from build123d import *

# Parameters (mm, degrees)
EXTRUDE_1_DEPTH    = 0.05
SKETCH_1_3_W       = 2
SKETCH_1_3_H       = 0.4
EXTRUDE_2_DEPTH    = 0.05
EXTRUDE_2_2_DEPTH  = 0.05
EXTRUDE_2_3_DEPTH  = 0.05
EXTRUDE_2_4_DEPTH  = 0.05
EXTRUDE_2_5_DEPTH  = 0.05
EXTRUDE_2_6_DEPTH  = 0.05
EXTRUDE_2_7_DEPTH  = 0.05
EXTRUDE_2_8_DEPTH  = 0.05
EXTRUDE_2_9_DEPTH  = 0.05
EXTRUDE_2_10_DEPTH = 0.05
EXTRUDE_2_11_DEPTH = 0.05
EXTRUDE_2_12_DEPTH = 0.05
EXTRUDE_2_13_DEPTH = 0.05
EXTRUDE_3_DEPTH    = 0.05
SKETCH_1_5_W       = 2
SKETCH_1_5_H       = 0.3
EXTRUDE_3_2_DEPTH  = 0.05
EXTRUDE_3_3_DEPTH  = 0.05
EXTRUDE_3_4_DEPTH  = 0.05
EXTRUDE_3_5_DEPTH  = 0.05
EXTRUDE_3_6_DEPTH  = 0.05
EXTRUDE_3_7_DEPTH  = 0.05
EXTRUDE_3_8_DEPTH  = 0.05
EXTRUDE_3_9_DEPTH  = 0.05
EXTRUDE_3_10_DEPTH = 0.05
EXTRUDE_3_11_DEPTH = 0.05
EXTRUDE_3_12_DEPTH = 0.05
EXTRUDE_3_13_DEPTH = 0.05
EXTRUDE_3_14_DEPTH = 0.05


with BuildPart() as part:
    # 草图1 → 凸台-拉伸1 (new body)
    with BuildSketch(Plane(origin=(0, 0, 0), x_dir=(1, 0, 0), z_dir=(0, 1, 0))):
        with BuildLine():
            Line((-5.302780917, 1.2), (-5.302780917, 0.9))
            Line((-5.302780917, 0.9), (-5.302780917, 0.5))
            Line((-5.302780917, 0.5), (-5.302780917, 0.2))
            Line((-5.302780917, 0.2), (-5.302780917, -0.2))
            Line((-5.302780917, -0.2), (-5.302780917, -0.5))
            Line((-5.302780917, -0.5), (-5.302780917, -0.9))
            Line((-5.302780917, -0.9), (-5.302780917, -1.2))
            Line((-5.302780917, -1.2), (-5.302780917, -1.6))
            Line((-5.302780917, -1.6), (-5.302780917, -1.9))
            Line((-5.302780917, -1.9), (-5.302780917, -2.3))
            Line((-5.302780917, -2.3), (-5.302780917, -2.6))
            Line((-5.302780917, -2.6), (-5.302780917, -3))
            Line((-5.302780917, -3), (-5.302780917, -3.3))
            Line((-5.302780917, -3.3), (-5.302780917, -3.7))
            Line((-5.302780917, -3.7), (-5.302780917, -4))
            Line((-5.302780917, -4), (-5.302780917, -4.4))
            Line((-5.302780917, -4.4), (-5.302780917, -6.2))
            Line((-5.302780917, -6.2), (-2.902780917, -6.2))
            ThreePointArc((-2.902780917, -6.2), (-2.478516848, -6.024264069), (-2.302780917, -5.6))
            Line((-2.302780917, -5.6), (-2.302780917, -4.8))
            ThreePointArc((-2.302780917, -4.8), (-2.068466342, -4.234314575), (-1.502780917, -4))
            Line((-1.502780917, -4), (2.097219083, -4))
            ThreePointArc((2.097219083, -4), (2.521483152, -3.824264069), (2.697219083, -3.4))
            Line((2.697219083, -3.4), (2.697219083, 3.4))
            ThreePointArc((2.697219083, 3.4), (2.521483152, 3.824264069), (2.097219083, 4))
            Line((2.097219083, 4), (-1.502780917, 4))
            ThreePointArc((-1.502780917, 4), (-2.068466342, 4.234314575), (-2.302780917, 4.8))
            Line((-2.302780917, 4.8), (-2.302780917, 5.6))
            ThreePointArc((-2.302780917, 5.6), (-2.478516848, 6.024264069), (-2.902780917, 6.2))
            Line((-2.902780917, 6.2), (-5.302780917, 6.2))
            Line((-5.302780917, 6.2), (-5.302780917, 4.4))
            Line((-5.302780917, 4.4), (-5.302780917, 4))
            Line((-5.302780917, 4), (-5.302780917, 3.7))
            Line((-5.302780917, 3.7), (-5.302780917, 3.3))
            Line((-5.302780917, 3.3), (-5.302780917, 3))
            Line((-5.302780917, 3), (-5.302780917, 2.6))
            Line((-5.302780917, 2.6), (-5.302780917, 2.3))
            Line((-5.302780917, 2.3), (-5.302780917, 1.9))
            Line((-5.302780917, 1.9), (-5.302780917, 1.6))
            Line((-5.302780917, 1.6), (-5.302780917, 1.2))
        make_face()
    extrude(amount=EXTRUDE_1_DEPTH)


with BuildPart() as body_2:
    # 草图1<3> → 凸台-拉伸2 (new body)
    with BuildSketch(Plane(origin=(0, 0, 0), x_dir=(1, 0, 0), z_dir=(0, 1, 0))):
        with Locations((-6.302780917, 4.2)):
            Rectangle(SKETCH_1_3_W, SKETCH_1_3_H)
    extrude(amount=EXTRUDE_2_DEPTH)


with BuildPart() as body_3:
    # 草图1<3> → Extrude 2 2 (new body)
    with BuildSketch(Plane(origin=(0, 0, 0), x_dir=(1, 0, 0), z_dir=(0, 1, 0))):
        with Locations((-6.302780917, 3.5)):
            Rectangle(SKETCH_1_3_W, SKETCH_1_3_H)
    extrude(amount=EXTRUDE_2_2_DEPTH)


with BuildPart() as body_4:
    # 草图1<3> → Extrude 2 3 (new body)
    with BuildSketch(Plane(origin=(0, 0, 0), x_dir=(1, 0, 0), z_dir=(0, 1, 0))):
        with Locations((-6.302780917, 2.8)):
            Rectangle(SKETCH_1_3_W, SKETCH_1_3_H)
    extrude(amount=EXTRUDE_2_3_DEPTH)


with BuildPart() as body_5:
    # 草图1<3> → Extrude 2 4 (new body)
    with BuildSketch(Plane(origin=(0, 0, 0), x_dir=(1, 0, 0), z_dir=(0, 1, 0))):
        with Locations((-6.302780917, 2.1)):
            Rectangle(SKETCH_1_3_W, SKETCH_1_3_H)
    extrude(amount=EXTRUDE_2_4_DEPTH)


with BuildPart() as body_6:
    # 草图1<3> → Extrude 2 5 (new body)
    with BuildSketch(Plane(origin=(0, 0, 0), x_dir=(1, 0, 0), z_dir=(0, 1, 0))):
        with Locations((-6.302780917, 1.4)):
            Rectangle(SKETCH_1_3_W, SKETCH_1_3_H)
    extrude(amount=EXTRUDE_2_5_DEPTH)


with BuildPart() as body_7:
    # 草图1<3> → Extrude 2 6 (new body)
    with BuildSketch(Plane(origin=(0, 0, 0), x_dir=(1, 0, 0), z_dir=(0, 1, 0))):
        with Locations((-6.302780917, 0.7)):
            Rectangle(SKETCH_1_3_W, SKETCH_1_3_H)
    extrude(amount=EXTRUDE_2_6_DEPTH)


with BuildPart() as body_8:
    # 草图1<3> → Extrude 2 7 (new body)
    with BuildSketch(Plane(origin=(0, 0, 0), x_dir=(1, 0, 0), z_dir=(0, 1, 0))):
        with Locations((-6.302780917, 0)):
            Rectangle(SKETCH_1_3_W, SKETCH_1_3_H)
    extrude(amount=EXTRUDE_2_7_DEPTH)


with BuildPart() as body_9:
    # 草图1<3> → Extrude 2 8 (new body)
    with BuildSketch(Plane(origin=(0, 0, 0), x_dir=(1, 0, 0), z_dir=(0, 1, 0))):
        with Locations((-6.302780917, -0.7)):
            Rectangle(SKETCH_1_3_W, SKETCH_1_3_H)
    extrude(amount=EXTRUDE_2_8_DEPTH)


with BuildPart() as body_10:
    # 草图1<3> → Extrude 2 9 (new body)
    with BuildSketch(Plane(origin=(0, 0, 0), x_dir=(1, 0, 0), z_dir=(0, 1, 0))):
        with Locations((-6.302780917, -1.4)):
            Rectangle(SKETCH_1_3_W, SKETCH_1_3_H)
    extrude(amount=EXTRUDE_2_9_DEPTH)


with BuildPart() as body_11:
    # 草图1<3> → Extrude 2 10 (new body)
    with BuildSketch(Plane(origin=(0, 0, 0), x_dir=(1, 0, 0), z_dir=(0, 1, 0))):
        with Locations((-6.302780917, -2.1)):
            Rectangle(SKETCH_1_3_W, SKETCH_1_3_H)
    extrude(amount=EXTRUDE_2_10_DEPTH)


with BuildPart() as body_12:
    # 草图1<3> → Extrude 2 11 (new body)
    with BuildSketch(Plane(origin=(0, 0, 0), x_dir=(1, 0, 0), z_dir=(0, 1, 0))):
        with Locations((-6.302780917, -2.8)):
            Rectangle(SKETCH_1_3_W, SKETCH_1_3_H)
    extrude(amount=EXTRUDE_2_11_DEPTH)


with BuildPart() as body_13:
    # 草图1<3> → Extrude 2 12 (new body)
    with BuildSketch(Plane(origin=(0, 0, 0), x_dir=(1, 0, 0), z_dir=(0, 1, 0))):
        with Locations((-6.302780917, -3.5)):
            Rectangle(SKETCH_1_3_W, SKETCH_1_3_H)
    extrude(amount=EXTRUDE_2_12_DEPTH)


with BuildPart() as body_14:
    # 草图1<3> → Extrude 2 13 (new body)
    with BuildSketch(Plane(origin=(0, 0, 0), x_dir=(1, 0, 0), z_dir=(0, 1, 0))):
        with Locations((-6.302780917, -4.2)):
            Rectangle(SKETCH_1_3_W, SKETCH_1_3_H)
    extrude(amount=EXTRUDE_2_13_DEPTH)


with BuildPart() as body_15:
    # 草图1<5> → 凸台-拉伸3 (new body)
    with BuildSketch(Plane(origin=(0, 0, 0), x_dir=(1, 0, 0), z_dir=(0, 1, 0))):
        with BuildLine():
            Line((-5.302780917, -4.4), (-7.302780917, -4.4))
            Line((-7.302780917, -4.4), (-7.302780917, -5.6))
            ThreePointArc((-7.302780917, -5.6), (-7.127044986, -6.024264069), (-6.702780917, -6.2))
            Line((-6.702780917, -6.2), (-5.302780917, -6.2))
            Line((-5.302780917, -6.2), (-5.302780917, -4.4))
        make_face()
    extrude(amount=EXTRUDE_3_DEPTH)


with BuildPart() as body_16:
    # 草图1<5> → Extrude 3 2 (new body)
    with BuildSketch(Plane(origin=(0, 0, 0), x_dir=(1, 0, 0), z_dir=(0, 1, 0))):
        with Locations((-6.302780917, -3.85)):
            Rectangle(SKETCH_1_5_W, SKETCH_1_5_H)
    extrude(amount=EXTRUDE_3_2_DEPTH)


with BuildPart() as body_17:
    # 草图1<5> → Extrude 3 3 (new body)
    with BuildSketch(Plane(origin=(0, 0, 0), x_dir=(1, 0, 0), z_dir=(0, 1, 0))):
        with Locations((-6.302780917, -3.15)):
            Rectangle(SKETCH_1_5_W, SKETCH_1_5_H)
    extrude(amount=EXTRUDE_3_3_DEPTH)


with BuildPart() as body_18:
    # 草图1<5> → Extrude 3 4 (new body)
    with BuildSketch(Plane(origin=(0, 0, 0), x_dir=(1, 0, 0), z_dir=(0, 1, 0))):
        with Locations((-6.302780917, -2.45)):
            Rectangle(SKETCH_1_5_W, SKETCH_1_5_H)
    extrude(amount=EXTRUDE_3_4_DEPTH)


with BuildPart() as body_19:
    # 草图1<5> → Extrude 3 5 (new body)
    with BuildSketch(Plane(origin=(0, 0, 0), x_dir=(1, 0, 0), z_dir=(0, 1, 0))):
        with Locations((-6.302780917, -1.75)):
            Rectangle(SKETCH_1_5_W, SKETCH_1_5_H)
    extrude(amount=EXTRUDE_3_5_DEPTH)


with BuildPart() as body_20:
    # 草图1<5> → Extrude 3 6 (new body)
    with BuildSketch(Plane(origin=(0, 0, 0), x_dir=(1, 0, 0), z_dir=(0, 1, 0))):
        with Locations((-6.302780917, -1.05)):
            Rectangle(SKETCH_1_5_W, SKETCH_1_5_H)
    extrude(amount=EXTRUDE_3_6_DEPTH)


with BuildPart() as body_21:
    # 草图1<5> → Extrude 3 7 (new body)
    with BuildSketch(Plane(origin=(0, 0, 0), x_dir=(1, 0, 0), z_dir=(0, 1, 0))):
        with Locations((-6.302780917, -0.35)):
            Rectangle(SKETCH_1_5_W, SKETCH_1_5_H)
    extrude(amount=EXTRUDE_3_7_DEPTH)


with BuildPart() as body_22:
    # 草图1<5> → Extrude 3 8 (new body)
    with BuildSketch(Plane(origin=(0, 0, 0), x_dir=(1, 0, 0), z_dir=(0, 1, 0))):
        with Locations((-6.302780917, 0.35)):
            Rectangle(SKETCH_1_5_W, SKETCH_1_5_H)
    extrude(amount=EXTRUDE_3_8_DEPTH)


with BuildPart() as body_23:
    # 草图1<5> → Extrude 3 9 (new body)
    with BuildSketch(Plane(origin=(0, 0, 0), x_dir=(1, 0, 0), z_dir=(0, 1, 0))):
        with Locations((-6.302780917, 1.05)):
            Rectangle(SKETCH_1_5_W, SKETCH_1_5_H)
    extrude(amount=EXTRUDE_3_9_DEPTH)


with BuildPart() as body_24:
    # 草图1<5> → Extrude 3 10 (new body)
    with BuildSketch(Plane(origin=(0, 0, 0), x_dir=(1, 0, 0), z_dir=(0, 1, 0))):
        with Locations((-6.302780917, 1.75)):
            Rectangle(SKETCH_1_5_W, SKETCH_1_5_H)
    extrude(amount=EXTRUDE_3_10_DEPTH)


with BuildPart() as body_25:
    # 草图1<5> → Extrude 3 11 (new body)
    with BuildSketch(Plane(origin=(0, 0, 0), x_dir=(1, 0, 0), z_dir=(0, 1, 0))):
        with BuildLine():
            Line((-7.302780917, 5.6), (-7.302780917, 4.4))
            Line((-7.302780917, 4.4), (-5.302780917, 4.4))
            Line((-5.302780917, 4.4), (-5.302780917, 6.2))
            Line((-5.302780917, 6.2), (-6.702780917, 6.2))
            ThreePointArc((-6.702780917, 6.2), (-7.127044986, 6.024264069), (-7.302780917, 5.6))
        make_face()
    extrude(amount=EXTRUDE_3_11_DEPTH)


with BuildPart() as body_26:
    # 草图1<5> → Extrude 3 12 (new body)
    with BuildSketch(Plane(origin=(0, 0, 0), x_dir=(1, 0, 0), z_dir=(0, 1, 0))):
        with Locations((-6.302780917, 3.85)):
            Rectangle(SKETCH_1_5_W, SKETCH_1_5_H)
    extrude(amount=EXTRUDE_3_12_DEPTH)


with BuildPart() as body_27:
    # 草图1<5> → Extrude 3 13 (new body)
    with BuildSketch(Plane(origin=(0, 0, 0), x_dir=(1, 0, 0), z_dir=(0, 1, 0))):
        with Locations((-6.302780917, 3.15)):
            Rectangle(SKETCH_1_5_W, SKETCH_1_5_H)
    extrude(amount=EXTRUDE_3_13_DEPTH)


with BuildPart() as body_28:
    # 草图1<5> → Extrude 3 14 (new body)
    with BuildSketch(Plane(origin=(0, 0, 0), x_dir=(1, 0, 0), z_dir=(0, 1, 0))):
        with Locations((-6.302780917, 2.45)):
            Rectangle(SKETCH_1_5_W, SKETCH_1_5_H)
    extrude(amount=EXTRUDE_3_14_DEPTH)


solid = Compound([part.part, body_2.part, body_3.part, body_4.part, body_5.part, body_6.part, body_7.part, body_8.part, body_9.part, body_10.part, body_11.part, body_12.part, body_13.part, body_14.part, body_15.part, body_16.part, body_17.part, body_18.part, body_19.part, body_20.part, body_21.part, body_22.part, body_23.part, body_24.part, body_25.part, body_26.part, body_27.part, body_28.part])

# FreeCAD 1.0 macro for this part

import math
import FreeCAD as App
import Part
import Sketcher


def add_polygon(sketch, points):
    """Adds a closed chain of lines whose ends are joined by coincident constraints."""
    first, n = sketch.GeometryCount, len(points)
    for a, b in zip(points, points[1:] + points[:1]):
        sketch.addGeometry(Part.LineSegment(App.Vector(*a, 0), App.Vector(*b, 0)), False)
    for i in range(n):
        sketch.addConstraint(Sketcher.Constraint("Coincident", first + i, 2, first + (i + 1) % n, 1))

doc = App.newDocument("Part")
body = doc.addObject("PartDesign::Body", "Body")

sketch1 = body.newObject("Sketcher::SketchObject", "Sketch")
sketch1.AttachmentSupport = (doc.getObject("XZ_Plane"), [""])
sketch1.MapMode = "FlatFace"
sketch1.addGeometry([
    Part.LineSegment(App.Vector(-5.3, 6.2, 0), App.Vector(-2.9, 6.2, 0)),
    Part.ArcOfCircle(Part.Circle(App.Vector(-2.9, 5.6, 0), App.Vector(0, 0, 1), 0.6), math.radians(0), math.radians(90)),
    Part.LineSegment(App.Vector(-2.3, 5.6, 0), App.Vector(-2.3, 4.8, 0)),
    Part.ArcOfCircle(Part.Circle(App.Vector(-1.5, 4.8, 0), App.Vector(0, 0, 1), 0.8), math.radians(180), math.radians(270)),
    Part.LineSegment(App.Vector(-1.5, 4, 0), App.Vector(2.1, 4, 0)),
    Part.ArcOfCircle(Part.Circle(App.Vector(2.1, 3.4, 0), App.Vector(0, 0, 1), 0.6), math.radians(0), math.radians(90)),
    Part.LineSegment(App.Vector(2.7, 3.4, 0), App.Vector(2.7, -3.4, 0)),
    Part.ArcOfCircle(Part.Circle(App.Vector(2.1, -3.4, 0), App.Vector(0, 0, 1), 0.6), math.radians(-90), math.radians(0)),
    Part.LineSegment(App.Vector(2.1, -4, 0), App.Vector(-1.5, -4, 0)),
    Part.ArcOfCircle(Part.Circle(App.Vector(-1.5, -4.8, 0), App.Vector(0, 0, 1), 0.8), math.radians(90), math.radians(180)),
    Part.LineSegment(App.Vector(-2.3, -4.8, 0), App.Vector(-2.3, -5.6, 0)),
    Part.ArcOfCircle(Part.Circle(App.Vector(-2.9, -5.6, 0), App.Vector(0, 0, 1), 0.6), math.radians(-90), math.radians(0)),
    Part.LineSegment(App.Vector(-2.9, -6.2, 0), App.Vector(-5.3, -6.2, 0)),
    Part.LineSegment(App.Vector(-5.3, -6.2, 0), App.Vector(-5.3, 6.2, 0)),
], False)
sketch1.addConstraint([
    Sketcher.Constraint("Tangent", 0, 2, 1, 2),
    Sketcher.Constraint("Tangent", 1, 1, 2, 1),
    Sketcher.Constraint("Tangent", 2, 2, 3, 1),
    Sketcher.Constraint("Tangent", 3, 2, 4, 1),
    Sketcher.Constraint("Tangent", 4, 2, 5, 2),
    Sketcher.Constraint("Tangent", 5, 1, 6, 1),
    Sketcher.Constraint("Tangent", 6, 2, 7, 2),
    Sketcher.Constraint("Tangent", 7, 1, 8, 1),
    Sketcher.Constraint("Tangent", 8, 2, 9, 1),
    Sketcher.Constraint("Tangent", 9, 2, 10, 1),
    Sketcher.Constraint("Tangent", 10, 2, 11, 2),
    Sketcher.Constraint("Tangent", 11, 1, 12, 1),
    Sketcher.Constraint("Coincident", 12, 2, 13, 1),
    Sketcher.Constraint("Coincident", 13, 2, 0, 1),
    Sketcher.Constraint("Horizontal", 0),
    Sketcher.Constraint("Vertical", 2),
    Sketcher.Constraint("Horizontal", 4),
    Sketcher.Constraint("Vertical", 6),
    Sketcher.Constraint("Horizontal", 8),
    Sketcher.Constraint("Vertical", 10),
    Sketcher.Constraint("Horizontal", 12),
    Sketcher.Constraint("Vertical", 13),
    Sketcher.Constraint("Equal", 1, 5),
    Sketcher.Constraint("Equal", 5, 7),
    Sketcher.Constraint("Equal", 3, 9),
    Sketcher.Constraint("Equal", 7, 11),
    Sketcher.Constraint("Symmetric", 3, 3, 9, 3, -1),
    Sketcher.Constraint("Equal", 2, 10),
    Sketcher.Constraint("Radius", 1, 0.6),
    Sketcher.Constraint("Radius", 3, 0.8),
    Sketcher.Constraint("DistanceX", 0, 1, 0, 2, 2.4),
    Sketcher.Constraint("DistanceX", 4, 1, 4, 2, 3.6),
    Sketcher.Constraint("DistanceY", 2, 2, 2, 1, 0.8),
    Sketcher.Constraint("DistanceY", 6, 2, 6, 1, 6.8),
    Sketcher.Constraint("DistanceX", 1, 3, -1, 1, 2.902781),
])
pad1 = body.newObject("PartDesign::Pad", "Pad")
pad1.Profile = sketch1
pad1.Length = 0.05
pad1.Reversed = True
body2 = doc.addObject("PartDesign::Body", "Body001")

sketch2 = body2.newObject("Sketcher::SketchObject", "Sketch001")
sketch2.AttachmentSupport = (doc.getObject("XZ_Plane001"), [""])
sketch2.MapMode = "FlatFace"
add_polygon(sketch2, [(-7.3, -4.4), (-7.3, -4), (-5.3, -4), (-5.3, -4.4)])
sketch2.addConstraint([
    Sketcher.Constraint("Vertical", 0),
    Sketcher.Constraint("Horizontal", 1),
    Sketcher.Constraint("Vertical", 2),
    Sketcher.Constraint("Horizontal", 3),
    Sketcher.Constraint("DistanceX", 1, 1, 1, 2, 2.0),
    Sketcher.Constraint("DistanceY", 0, 1, 0, 2, 0.4),
    Sketcher.Constraint("DistanceY", 0, 2, -1, 1, 4.0),
    Sketcher.Constraint("DistanceX", 0, 2, -1, 1, 7.302781),
])
pad2 = body2.newObject("PartDesign::Pad", "Pad001")
pad2.Profile = sketch2
pad2.Length = 0.05
pad2.Reversed = True
body3 = doc.addObject("PartDesign::Body", "Body002")

sketch3 = body3.newObject("Sketcher::SketchObject", "Sketch002")
sketch3.AttachmentSupport = (doc.getObject("XZ_Plane002"), [""])
sketch3.MapMode = "FlatFace"
add_polygon(sketch3, [(-7.3, -3.7), (-7.3, -3.3), (-5.3, -3.3), (-5.3, -3.7)])
sketch3.addConstraint([
    Sketcher.Constraint("Vertical", 0),
    Sketcher.Constraint("Horizontal", 1),
    Sketcher.Constraint("Vertical", 2),
    Sketcher.Constraint("Horizontal", 3),
    Sketcher.Constraint("DistanceX", 1, 1, 1, 2, 2.0),
    Sketcher.Constraint("DistanceY", 0, 1, 0, 2, 0.4),
    Sketcher.Constraint("DistanceY", 0, 2, -1, 1, 3.3),
    Sketcher.Constraint("DistanceX", 0, 2, -1, 1, 7.302781),
])
pad3 = body3.newObject("PartDesign::Pad", "Pad002")
pad3.Profile = sketch3
pad3.Length = 0.05
pad3.Reversed = True
body4 = doc.addObject("PartDesign::Body", "Body003")

sketch4 = body4.newObject("Sketcher::SketchObject", "Sketch003")
sketch4.AttachmentSupport = (doc.getObject("XZ_Plane003"), [""])
sketch4.MapMode = "FlatFace"
add_polygon(sketch4, [(-7.3, -3), (-7.3, -2.6), (-5.3, -2.6), (-5.3, -3)])
sketch4.addConstraint([
    Sketcher.Constraint("Vertical", 0),
    Sketcher.Constraint("Horizontal", 1),
    Sketcher.Constraint("Vertical", 2),
    Sketcher.Constraint("Horizontal", 3),
    Sketcher.Constraint("DistanceX", 1, 1, 1, 2, 2.0),
    Sketcher.Constraint("DistanceY", 0, 1, 0, 2, 0.4),
    Sketcher.Constraint("DistanceY", 2, 2, -1, 1, 3.0),
    Sketcher.Constraint("DistanceX", 0, 2, -1, 1, 7.302781),
])
pad4 = body4.newObject("PartDesign::Pad", "Pad003")
pad4.Profile = sketch4
pad4.Length = 0.05
pad4.Reversed = True
body5 = doc.addObject("PartDesign::Body", "Body004")

sketch5 = body5.newObject("Sketcher::SketchObject", "Sketch004")
sketch5.AttachmentSupport = (doc.getObject("XZ_Plane004"), [""])
sketch5.MapMode = "FlatFace"
add_polygon(sketch5, [(-7.3, -2.3), (-7.3, -1.9), (-5.3, -1.9), (-5.3, -2.3)])
sketch5.addConstraint([
    Sketcher.Constraint("Vertical", 0),
    Sketcher.Constraint("Horizontal", 1),
    Sketcher.Constraint("Vertical", 2),
    Sketcher.Constraint("Horizontal", 3),
    Sketcher.Constraint("DistanceX", 1, 1, 1, 2, 2.0),
    Sketcher.Constraint("DistanceY", 0, 1, 0, 2, 0.4),
    Sketcher.Constraint("DistanceY", 0, 2, -1, 1, 1.9),
    Sketcher.Constraint("DistanceX", 0, 2, -1, 1, 7.302781),
])
pad5 = body5.newObject("PartDesign::Pad", "Pad004")
pad5.Profile = sketch5
pad5.Length = 0.05
pad5.Reversed = True
body6 = doc.addObject("PartDesign::Body", "Body005")

sketch6 = body6.newObject("Sketcher::SketchObject", "Sketch005")
sketch6.AttachmentSupport = (doc.getObject("XZ_Plane005"), [""])
sketch6.MapMode = "FlatFace"
add_polygon(sketch6, [(-7.3, -1.6), (-7.3, -1.2), (-5.3, -1.2), (-5.3, -1.6)])
sketch6.addConstraint([
    Sketcher.Constraint("Vertical", 0),
    Sketcher.Constraint("Horizontal", 1),
    Sketcher.Constraint("Vertical", 2),
    Sketcher.Constraint("Horizontal", 3),
    Sketcher.Constraint("DistanceX", 1, 1, 1, 2, 2.0),
    Sketcher.Constraint("DistanceY", 0, 1, 0, 2, 0.4),
    Sketcher.Constraint("DistanceY", 0, 2, -1, 1, 1.2),
    Sketcher.Constraint("DistanceX", 0, 2, -1, 1, 7.302781),
])
pad6 = body6.newObject("PartDesign::Pad", "Pad005")
pad6.Profile = sketch6
pad6.Length = 0.05
pad6.Reversed = True
body7 = doc.addObject("PartDesign::Body", "Body006")

sketch7 = body7.newObject("Sketcher::SketchObject", "Sketch006")
sketch7.AttachmentSupport = (doc.getObject("XZ_Plane006"), [""])
sketch7.MapMode = "FlatFace"
add_polygon(sketch7, [(-7.3, -0.9), (-7.3, -0.5), (-5.3, -0.5), (-5.3, -0.9)])
sketch7.addConstraint([
    Sketcher.Constraint("Vertical", 0),
    Sketcher.Constraint("Horizontal", 1),
    Sketcher.Constraint("Vertical", 2),
    Sketcher.Constraint("Horizontal", 3),
    Sketcher.Constraint("DistanceX", 1, 1, 1, 2, 2.0),
    Sketcher.Constraint("DistanceY", 0, 1, 0, 2, 0.4),
    Sketcher.Constraint("DistanceY", 0, 2, -1, 1, 0.5),
    Sketcher.Constraint("DistanceX", 0, 2, -1, 1, 7.302781),
])
pad7 = body7.newObject("PartDesign::Pad", "Pad006")
pad7.Profile = sketch7
pad7.Length = 0.05
pad7.Reversed = True
body8 = doc.addObject("PartDesign::Body", "Body007")

sketch8 = body8.newObject("Sketcher::SketchObject", "Sketch007")
sketch8.AttachmentSupport = (doc.getObject("XZ_Plane007"), [""])
sketch8.MapMode = "FlatFace"
add_polygon(sketch8, [(-7.3, -0.2), (-7.3, 0.2), (-5.3, 0.2), (-5.3, -0.2)])
sketch8.addConstraint([
    Sketcher.Constraint("Vertical", 0),
    Sketcher.Constraint("Horizontal", 1),
    Sketcher.Constraint("Vertical", 2),
    Sketcher.Constraint("Horizontal", 3),
    Sketcher.Constraint("DistanceX", 1, 1, 1, 2, 2.0),
    Sketcher.Constraint("DistanceY", 0, 1, 0, 2, 0.4),
    Sketcher.Constraint("DistanceY", -1, 1, 0, 2, 0.2),
    Sketcher.Constraint("DistanceX", 0, 2, -1, 1, 7.302781),
])
pad8 = body8.newObject("PartDesign::Pad", "Pad007")
pad8.Profile = sketch8
pad8.Length = 0.05
pad8.Reversed = True
body9 = doc.addObject("PartDesign::Body", "Body008")

sketch9 = body9.newObject("Sketcher::SketchObject", "Sketch008")
sketch9.AttachmentSupport = (doc.getObject("XZ_Plane008"), [""])
sketch9.MapMode = "FlatFace"
add_polygon(sketch9, [(-7.3, 0.5), (-7.3, 0.9), (-5.3, 0.9), (-5.3, 0.5)])
sketch9.addConstraint([
    Sketcher.Constraint("Vertical", 0),
    Sketcher.Constraint("Horizontal", 1),
    Sketcher.Constraint("Vertical", 2),
    Sketcher.Constraint("Horizontal", 3),
    Sketcher.Constraint("DistanceX", 1, 1, 1, 2, 2.0),
    Sketcher.Constraint("DistanceY", 0, 1, 0, 2, 0.4),
    Sketcher.Constraint("DistanceY", -1, 1, 0, 2, 0.9),
    Sketcher.Constraint("DistanceX", 0, 2, -1, 1, 7.302781),
])
pad9 = body9.newObject("PartDesign::Pad", "Pad008")
pad9.Profile = sketch9
pad9.Length = 0.05
pad9.Reversed = True
body10 = doc.addObject("PartDesign::Body", "Body009")

sketch10 = body10.newObject("Sketcher::SketchObject", "Sketch009")
sketch10.AttachmentSupport = (doc.getObject("XZ_Plane009"), [""])
sketch10.MapMode = "FlatFace"
add_polygon(sketch10, [(-7.3, 1.2), (-7.3, 1.6), (-5.3, 1.6), (-5.3, 1.2)])
sketch10.addConstraint([
    Sketcher.Constraint("Vertical", 0),
    Sketcher.Constraint("Horizontal", 1),
    Sketcher.Constraint("Vertical", 2),
    Sketcher.Constraint("Horizontal", 3),
    Sketcher.Constraint("DistanceX", 1, 1, 1, 2, 2.0),
    Sketcher.Constraint("DistanceY", 0, 1, 0, 2, 0.4),
    Sketcher.Constraint("DistanceY", -1, 1, 0, 2, 1.6),
    Sketcher.Constraint("DistanceX", 0, 2, -1, 1, 7.302781),
])
pad10 = body10.newObject("PartDesign::Pad", "Pad009")
pad10.Profile = sketch10
pad10.Length = 0.05
pad10.Reversed = True
body11 = doc.addObject("PartDesign::Body", "Body010")

sketch11 = body11.newObject("Sketcher::SketchObject", "Sketch010")
sketch11.AttachmentSupport = (doc.getObject("XZ_Plane010"), [""])
sketch11.MapMode = "FlatFace"
add_polygon(sketch11, [(-7.3, 1.9), (-7.3, 2.3), (-5.3, 2.3), (-5.3, 1.9)])
sketch11.addConstraint([
    Sketcher.Constraint("Vertical", 0),
    Sketcher.Constraint("Horizontal", 1),
    Sketcher.Constraint("Vertical", 2),
    Sketcher.Constraint("Horizontal", 3),
    Sketcher.Constraint("DistanceX", 1, 1, 1, 2, 2.0),
    Sketcher.Constraint("DistanceY", 0, 1, 0, 2, 0.4),
    Sketcher.Constraint("DistanceY", -1, 1, 0, 2, 2.3),
    Sketcher.Constraint("DistanceX", 0, 2, -1, 1, 7.302781),
])
pad11 = body11.newObject("PartDesign::Pad", "Pad010")
pad11.Profile = sketch11
pad11.Length = 0.05
pad11.Reversed = True
body12 = doc.addObject("PartDesign::Body", "Body011")

sketch12 = body12.newObject("Sketcher::SketchObject", "Sketch011")
sketch12.AttachmentSupport = (doc.getObject("XZ_Plane011"), [""])
sketch12.MapMode = "FlatFace"
add_polygon(sketch12, [(-7.3, 2.6), (-7.3, 3), (-5.3, 3), (-5.3, 2.6)])
sketch12.addConstraint([
    Sketcher.Constraint("Vertical", 0),
    Sketcher.Constraint("Horizontal", 1),
    Sketcher.Constraint("Vertical", 2),
    Sketcher.Constraint("Horizontal", 3),
    Sketcher.Constraint("DistanceX", 1, 1, 1, 2, 2.0),
    Sketcher.Constraint("DistanceY", 0, 1, 0, 2, 0.4),
    Sketcher.Constraint("DistanceY", -1, 1, 0, 2, 3.0),
    Sketcher.Constraint("DistanceX", 0, 2, -1, 1, 7.302781),
])
pad12 = body12.newObject("PartDesign::Pad", "Pad011")
pad12.Profile = sketch12
pad12.Length = 0.05
pad12.Reversed = True
body13 = doc.addObject("PartDesign::Body", "Body012")

sketch13 = body13.newObject("Sketcher::SketchObject", "Sketch012")
sketch13.AttachmentSupport = (doc.getObject("XZ_Plane012"), [""])
sketch13.MapMode = "FlatFace"
add_polygon(sketch13, [(-7.3, 3.3), (-7.3, 3.7), (-5.3, 3.7), (-5.3, 3.3)])
sketch13.addConstraint([
    Sketcher.Constraint("Vertical", 0),
    Sketcher.Constraint("Horizontal", 1),
    Sketcher.Constraint("Vertical", 2),
    Sketcher.Constraint("Horizontal", 3),
    Sketcher.Constraint("DistanceX", 1, 1, 1, 2, 2.0),
    Sketcher.Constraint("DistanceY", 0, 1, 0, 2, 0.4),
    Sketcher.Constraint("DistanceY", -1, 1, 0, 2, 3.7),
    Sketcher.Constraint("DistanceX", 0, 2, -1, 1, 7.302781),
])
pad13 = body13.newObject("PartDesign::Pad", "Pad012")
pad13.Profile = sketch13
pad13.Length = 0.05
pad13.Reversed = True
body14 = doc.addObject("PartDesign::Body", "Body013")

sketch14 = body14.newObject("Sketcher::SketchObject", "Sketch013")
sketch14.AttachmentSupport = (doc.getObject("XZ_Plane013"), [""])
sketch14.MapMode = "FlatFace"
add_polygon(sketch14, [(-7.3, 4), (-7.3, 4.4), (-5.3, 4.4), (-5.3, 4)])
sketch14.addConstraint([
    Sketcher.Constraint("Vertical", 0),
    Sketcher.Constraint("Horizontal", 1),
    Sketcher.Constraint("Vertical", 2),
    Sketcher.Constraint("Horizontal", 3),
    Sketcher.Constraint("DistanceX", 1, 1, 1, 2, 2.0),
    Sketcher.Constraint("DistanceY", 0, 1, 0, 2, 0.4),
    Sketcher.Constraint("DistanceY", -1, 1, 2, 2, 4.0),
    Sketcher.Constraint("DistanceX", 0, 2, -1, 1, 7.302781),
])
pad14 = body14.newObject("PartDesign::Pad", "Pad013")
pad14.Profile = sketch14
pad14.Length = 0.05
pad14.Reversed = True
body15 = doc.addObject("PartDesign::Body", "Body014")

sketch15 = body15.newObject("Sketcher::SketchObject", "Sketch014")
sketch15.AttachmentSupport = (doc.getObject("XZ_Plane014"), [""])
sketch15.MapMode = "FlatFace"
sketch15.addGeometry([
    Part.LineSegment(App.Vector(-5.3, 4.4, 0), App.Vector(-7.3, 4.4, 0)),
    Part.LineSegment(App.Vector(-7.3, 4.4, 0), App.Vector(-7.3, 5.6, 0)),
    Part.ArcOfCircle(Part.Circle(App.Vector(-6.7, 5.6, 0), App.Vector(0, 0, 1), 0.6), math.radians(90), math.radians(180)),
    Part.LineSegment(App.Vector(-6.7, 6.2, 0), App.Vector(-5.3, 6.2, 0)),
    Part.LineSegment(App.Vector(-5.3, 6.2, 0), App.Vector(-5.3, 4.4, 0)),
], False)
sketch15.addConstraint([
    Sketcher.Constraint("Coincident", 0, 2, 1, 1),
    Sketcher.Constraint("Tangent", 1, 2, 2, 2),
    Sketcher.Constraint("Tangent", 2, 1, 3, 1),
    Sketcher.Constraint("Coincident", 3, 2, 4, 1),
    Sketcher.Constraint("Coincident", 4, 2, 0, 1),
    Sketcher.Constraint("Horizontal", 0),
    Sketcher.Constraint("Vertical", 1),
    Sketcher.Constraint("Horizontal", 3),
    Sketcher.Constraint("Vertical", 4),
    Sketcher.Constraint("Radius", 2, 0.6),
    Sketcher.Constraint("DistanceX", 0, 2, 0, 1, 2.0),
    Sketcher.Constraint("DistanceY", 1, 1, 1, 2, 1.2),
    Sketcher.Constraint("DistanceY", -1, 1, 2, 3, 5.6),
    Sketcher.Constraint("DistanceX", 2, 3, -1, 1, 6.702781),
])
pad15 = body15.newObject("PartDesign::Pad", "Pad014")
pad15.Profile = sketch15
pad15.Length = 0.05
pad15.Reversed = True
body16 = doc.addObject("PartDesign::Body", "Body015")

sketch16 = body16.newObject("Sketcher::SketchObject", "Sketch015")
sketch16.AttachmentSupport = (doc.getObject("XZ_Plane015"), [""])
sketch16.MapMode = "FlatFace"
add_polygon(sketch16, [(-7.3, 3.7), (-7.3, 4), (-5.3, 4), (-5.3, 3.7)])
sketch16.addConstraint([
    Sketcher.Constraint("Vertical", 0),
    Sketcher.Constraint("Horizontal", 1),
    Sketcher.Constraint("Vertical", 2),
    Sketcher.Constraint("Horizontal", 3),
    Sketcher.Constraint("DistanceX", 1, 1, 1, 2, 2.0),
    Sketcher.Constraint("DistanceY", 0, 1, 0, 2, 0.3),
    Sketcher.Constraint("DistanceY", -1, 1, 0, 2, 4.0),
    Sketcher.Constraint("DistanceX", 0, 2, -1, 1, 7.302781),
])
pad16 = body16.newObject("PartDesign::Pad", "Pad015")
pad16.Profile = sketch16
pad16.Length = 0.05
pad16.Reversed = True
body17 = doc.addObject("PartDesign::Body", "Body016")

sketch17 = body17.newObject("Sketcher::SketchObject", "Sketch016")
sketch17.AttachmentSupport = (doc.getObject("XZ_Plane016"), [""])
sketch17.MapMode = "FlatFace"
add_polygon(sketch17, [(-7.3, 3), (-7.3, 3.3), (-5.3, 3.3), (-5.3, 3)])
sketch17.addConstraint([
    Sketcher.Constraint("Vertical", 0),
    Sketcher.Constraint("Horizontal", 1),
    Sketcher.Constraint("Vertical", 2),
    Sketcher.Constraint("Horizontal", 3),
    Sketcher.Constraint("DistanceX", 1, 1, 1, 2, 2.0),
    Sketcher.Constraint("DistanceY", 0, 1, 0, 2, 0.3),
    Sketcher.Constraint("DistanceY", -1, 1, 2, 2, 3.0),
    Sketcher.Constraint("DistanceX", 0, 2, -1, 1, 7.302781),
])
pad17 = body17.newObject("PartDesign::Pad", "Pad016")
pad17.Profile = sketch17
pad17.Length = 0.05
pad17.Reversed = True
body18 = doc.addObject("PartDesign::Body", "Body017")

sketch18 = body18.newObject("Sketcher::SketchObject", "Sketch017")
sketch18.AttachmentSupport = (doc.getObject("XZ_Plane017"), [""])
sketch18.MapMode = "FlatFace"
add_polygon(sketch18, [(-7.3, 2.3), (-7.3, 2.6), (-5.3, 2.6), (-5.3, 2.3)])
sketch18.addConstraint([
    Sketcher.Constraint("Vertical", 0),
    Sketcher.Constraint("Horizontal", 1),
    Sketcher.Constraint("Vertical", 2),
    Sketcher.Constraint("Horizontal", 3),
    Sketcher.Constraint("DistanceX", 1, 1, 1, 2, 2.0),
    Sketcher.Constraint("DistanceY", 0, 1, 0, 2, 0.3),
    Sketcher.Constraint("DistanceY", -1, 1, 0, 2, 2.6),
    Sketcher.Constraint("DistanceX", 0, 2, -1, 1, 7.302781),
])
pad18 = body18.newObject("PartDesign::Pad", "Pad017")
pad18.Profile = sketch18
pad18.Length = 0.05
pad18.Reversed = True
body19 = doc.addObject("PartDesign::Body", "Body018")

sketch19 = body19.newObject("Sketcher::SketchObject", "Sketch018")
sketch19.AttachmentSupport = (doc.getObject("XZ_Plane018"), [""])
sketch19.MapMode = "FlatFace"
add_polygon(sketch19, [(-7.3, 1.6), (-7.3, 1.9), (-5.3, 1.9), (-5.3, 1.6)])
sketch19.addConstraint([
    Sketcher.Constraint("Vertical", 0),
    Sketcher.Constraint("Horizontal", 1),
    Sketcher.Constraint("Vertical", 2),
    Sketcher.Constraint("Horizontal", 3),
    Sketcher.Constraint("DistanceX", 1, 1, 1, 2, 2.0),
    Sketcher.Constraint("DistanceY", 0, 1, 0, 2, 0.3),
    Sketcher.Constraint("DistanceY", -1, 1, 0, 2, 1.9),
    Sketcher.Constraint("DistanceX", 0, 2, -1, 1, 7.302781),
])
pad19 = body19.newObject("PartDesign::Pad", "Pad018")
pad19.Profile = sketch19
pad19.Length = 0.05
pad19.Reversed = True
body20 = doc.addObject("PartDesign::Body", "Body019")

sketch20 = body20.newObject("Sketcher::SketchObject", "Sketch019")
sketch20.AttachmentSupport = (doc.getObject("XZ_Plane019"), [""])
sketch20.MapMode = "FlatFace"
add_polygon(sketch20, [(-7.3, 0.9), (-7.3, 1.2), (-5.3, 1.2), (-5.3, 0.9)])
sketch20.addConstraint([
    Sketcher.Constraint("Vertical", 0),
    Sketcher.Constraint("Horizontal", 1),
    Sketcher.Constraint("Vertical", 2),
    Sketcher.Constraint("Horizontal", 3),
    Sketcher.Constraint("DistanceX", 1, 1, 1, 2, 2.0),
    Sketcher.Constraint("DistanceY", 0, 1, 0, 2, 0.3),
    Sketcher.Constraint("DistanceY", -1, 1, 0, 2, 1.2),
    Sketcher.Constraint("DistanceX", 0, 2, -1, 1, 7.302781),
])
pad20 = body20.newObject("PartDesign::Pad", "Pad019")
pad20.Profile = sketch20
pad20.Length = 0.05
pad20.Reversed = True
body21 = doc.addObject("PartDesign::Body", "Body020")

sketch21 = body21.newObject("Sketcher::SketchObject", "Sketch020")
sketch21.AttachmentSupport = (doc.getObject("XZ_Plane020"), [""])
sketch21.MapMode = "FlatFace"
add_polygon(sketch21, [(-7.3, 0.2), (-7.3, 0.5), (-5.3, 0.5), (-5.3, 0.2)])
sketch21.addConstraint([
    Sketcher.Constraint("Vertical", 0),
    Sketcher.Constraint("Horizontal", 1),
    Sketcher.Constraint("Vertical", 2),
    Sketcher.Constraint("Horizontal", 3),
    Sketcher.Constraint("DistanceX", 1, 1, 1, 2, 2.0),
    Sketcher.Constraint("DistanceY", 0, 1, 0, 2, 0.3),
    Sketcher.Constraint("DistanceY", -1, 1, 0, 2, 0.5),
    Sketcher.Constraint("DistanceX", 0, 2, -1, 1, 7.302781),
])
pad21 = body21.newObject("PartDesign::Pad", "Pad020")
pad21.Profile = sketch21
pad21.Length = 0.05
pad21.Reversed = True
body22 = doc.addObject("PartDesign::Body", "Body021")

sketch22 = body22.newObject("Sketcher::SketchObject", "Sketch021")
sketch22.AttachmentSupport = (doc.getObject("XZ_Plane021"), [""])
sketch22.MapMode = "FlatFace"
add_polygon(sketch22, [(-7.3, -0.5), (-7.3, -0.2), (-5.3, -0.2), (-5.3, -0.5)])
sketch22.addConstraint([
    Sketcher.Constraint("Vertical", 0),
    Sketcher.Constraint("Horizontal", 1),
    Sketcher.Constraint("Vertical", 2),
    Sketcher.Constraint("Horizontal", 3),
    Sketcher.Constraint("DistanceX", 1, 1, 1, 2, 2.0),
    Sketcher.Constraint("DistanceY", 0, 1, 0, 2, 0.3),
    Sketcher.Constraint("DistanceY", 0, 2, -1, 1, 0.2),
    Sketcher.Constraint("DistanceX", 0, 2, -1, 1, 7.302781),
])
pad22 = body22.newObject("PartDesign::Pad", "Pad021")
pad22.Profile = sketch22
pad22.Length = 0.05
pad22.Reversed = True
body23 = doc.addObject("PartDesign::Body", "Body022")

sketch23 = body23.newObject("Sketcher::SketchObject", "Sketch022")
sketch23.AttachmentSupport = (doc.getObject("XZ_Plane022"), [""])
sketch23.MapMode = "FlatFace"
add_polygon(sketch23, [(-7.3, -1.2), (-7.3, -0.9), (-5.3, -0.9), (-5.3, -1.2)])
sketch23.addConstraint([
    Sketcher.Constraint("Vertical", 0),
    Sketcher.Constraint("Horizontal", 1),
    Sketcher.Constraint("Vertical", 2),
    Sketcher.Constraint("Horizontal", 3),
    Sketcher.Constraint("DistanceX", 1, 1, 1, 2, 2.0),
    Sketcher.Constraint("DistanceY", 0, 1, 0, 2, 0.3),
    Sketcher.Constraint("DistanceY", 0, 2, -1, 1, 0.9),
    Sketcher.Constraint("DistanceX", 0, 2, -1, 1, 7.302781),
])
pad23 = body23.newObject("PartDesign::Pad", "Pad022")
pad23.Profile = sketch23
pad23.Length = 0.05
pad23.Reversed = True
body24 = doc.addObject("PartDesign::Body", "Body023")

sketch24 = body24.newObject("Sketcher::SketchObject", "Sketch023")
sketch24.AttachmentSupport = (doc.getObject("XZ_Plane023"), [""])
sketch24.MapMode = "FlatFace"
add_polygon(sketch24, [(-7.3, -1.9), (-7.3, -1.6), (-5.3, -1.6), (-5.3, -1.9)])
sketch24.addConstraint([
    Sketcher.Constraint("Vertical", 0),
    Sketcher.Constraint("Horizontal", 1),
    Sketcher.Constraint("Vertical", 2),
    Sketcher.Constraint("Horizontal", 3),
    Sketcher.Constraint("DistanceX", 1, 1, 1, 2, 2.0),
    Sketcher.Constraint("DistanceY", 0, 1, 0, 2, 0.3),
    Sketcher.Constraint("DistanceY", 0, 2, -1, 1, 1.6),
    Sketcher.Constraint("DistanceX", 0, 2, -1, 1, 7.302781),
])
pad24 = body24.newObject("PartDesign::Pad", "Pad023")
pad24.Profile = sketch24
pad24.Length = 0.05
pad24.Reversed = True
body25 = doc.addObject("PartDesign::Body", "Body024")

sketch25 = body25.newObject("Sketcher::SketchObject", "Sketch024")
sketch25.AttachmentSupport = (doc.getObject("XZ_Plane024"), [""])
sketch25.MapMode = "FlatFace"
sketch25.addGeometry([
    Part.LineSegment(App.Vector(-7.3, -5.6, 0), App.Vector(-7.3, -4.4, 0)),
    Part.LineSegment(App.Vector(-7.3, -4.4, 0), App.Vector(-5.3, -4.4, 0)),
    Part.LineSegment(App.Vector(-5.3, -4.4, 0), App.Vector(-5.3, -6.2, 0)),
    Part.LineSegment(App.Vector(-5.3, -6.2, 0), App.Vector(-6.7, -6.2, 0)),
    Part.ArcOfCircle(Part.Circle(App.Vector(-6.7, -5.6, 0), App.Vector(0, 0, 1), 0.6), math.radians(180), math.radians(270)),
], False)
sketch25.addConstraint([
    Sketcher.Constraint("Coincident", 0, 2, 1, 1),
    Sketcher.Constraint("Coincident", 1, 2, 2, 1),
    Sketcher.Constraint("Coincident", 2, 2, 3, 1),
    Sketcher.Constraint("Tangent", 3, 2, 4, 2),
    Sketcher.Constraint("Tangent", 4, 1, 0, 1),
    Sketcher.Constraint("Vertical", 0),
    Sketcher.Constraint("Horizontal", 1),
    Sketcher.Constraint("Vertical", 2),
    Sketcher.Constraint("Horizontal", 3),
    Sketcher.Constraint("Radius", 4, 0.6),
    Sketcher.Constraint("DistanceX", 1, 1, 1, 2, 2.0),
    Sketcher.Constraint("DistanceY", 0, 1, 0, 2, 1.2),
    Sketcher.Constraint("DistanceY", 4, 3, -1, 1, 5.6),
    Sketcher.Constraint("DistanceX", 4, 3, -1, 1, 6.702781),
])
pad25 = body25.newObject("PartDesign::Pad", "Pad024")
pad25.Profile = sketch25
pad25.Length = 0.05
pad25.Reversed = True
body26 = doc.addObject("PartDesign::Body", "Body025")

sketch26 = body26.newObject("Sketcher::SketchObject", "Sketch025")
sketch26.AttachmentSupport = (doc.getObject("XZ_Plane025"), [""])
sketch26.MapMode = "FlatFace"
add_polygon(sketch26, [(-7.3, -4), (-7.3, -3.7), (-5.3, -3.7), (-5.3, -4)])
sketch26.addConstraint([
    Sketcher.Constraint("Vertical", 0),
    Sketcher.Constraint("Horizontal", 1),
    Sketcher.Constraint("Vertical", 2),
    Sketcher.Constraint("Horizontal", 3),
    Sketcher.Constraint("DistanceX", 1, 1, 1, 2, 2.0),
    Sketcher.Constraint("DistanceY", 0, 1, 0, 2, 0.3),
    Sketcher.Constraint("DistanceY", 2, 2, -1, 1, 4.0),
    Sketcher.Constraint("DistanceX", 0, 2, -1, 1, 7.302781),
])
pad26 = body26.newObject("PartDesign::Pad", "Pad025")
pad26.Profile = sketch26
pad26.Length = 0.05
pad26.Reversed = True
body27 = doc.addObject("PartDesign::Body", "Body026")

sketch27 = body27.newObject("Sketcher::SketchObject", "Sketch026")
sketch27.AttachmentSupport = (doc.getObject("XZ_Plane026"), [""])
sketch27.MapMode = "FlatFace"
add_polygon(sketch27, [(-7.3, -3.3), (-7.3, -3), (-5.3, -3), (-5.3, -3.3)])
sketch27.addConstraint([
    Sketcher.Constraint("Vertical", 0),
    Sketcher.Constraint("Horizontal", 1),
    Sketcher.Constraint("Vertical", 2),
    Sketcher.Constraint("Horizontal", 3),
    Sketcher.Constraint("DistanceX", 1, 1, 1, 2, 2.0),
    Sketcher.Constraint("DistanceY", 0, 1, 0, 2, 0.3),
    Sketcher.Constraint("DistanceY", 0, 2, -1, 1, 3.0),
    Sketcher.Constraint("DistanceX", 0, 2, -1, 1, 7.302781),
])
pad27 = body27.newObject("PartDesign::Pad", "Pad026")
pad27.Profile = sketch27
pad27.Length = 0.05
pad27.Reversed = True
body28 = doc.addObject("PartDesign::Body", "Body027")

sketch28 = body28.newObject("Sketcher::SketchObject", "Sketch027")
sketch28.AttachmentSupport = (doc.getObject("XZ_Plane027"), [""])
sketch28.MapMode = "FlatFace"
add_polygon(sketch28, [(-7.3, -2.6), (-7.3, -2.3), (-5.3, -2.3), (-5.3, -2.6)])
sketch28.addConstraint([
    Sketcher.Constraint("Vertical", 0),
    Sketcher.Constraint("Horizontal", 1),
    Sketcher.Constraint("Vertical", 2),
    Sketcher.Constraint("Horizontal", 3),
    Sketcher.Constraint("DistanceX", 1, 1, 1, 2, 2.0),
    Sketcher.Constraint("DistanceY", 0, 1, 0, 2, 0.3),
    Sketcher.Constraint("DistanceY", 0, 2, -1, 1, 2.3),
    Sketcher.Constraint("DistanceX", 0, 2, -1, 1, 7.302781),
])
pad28 = body28.newObject("PartDesign::Pad", "Pad027")
pad28.Profile = sketch28
pad28.Length = 0.05
pad28.Reversed = True

doc.recompute()
